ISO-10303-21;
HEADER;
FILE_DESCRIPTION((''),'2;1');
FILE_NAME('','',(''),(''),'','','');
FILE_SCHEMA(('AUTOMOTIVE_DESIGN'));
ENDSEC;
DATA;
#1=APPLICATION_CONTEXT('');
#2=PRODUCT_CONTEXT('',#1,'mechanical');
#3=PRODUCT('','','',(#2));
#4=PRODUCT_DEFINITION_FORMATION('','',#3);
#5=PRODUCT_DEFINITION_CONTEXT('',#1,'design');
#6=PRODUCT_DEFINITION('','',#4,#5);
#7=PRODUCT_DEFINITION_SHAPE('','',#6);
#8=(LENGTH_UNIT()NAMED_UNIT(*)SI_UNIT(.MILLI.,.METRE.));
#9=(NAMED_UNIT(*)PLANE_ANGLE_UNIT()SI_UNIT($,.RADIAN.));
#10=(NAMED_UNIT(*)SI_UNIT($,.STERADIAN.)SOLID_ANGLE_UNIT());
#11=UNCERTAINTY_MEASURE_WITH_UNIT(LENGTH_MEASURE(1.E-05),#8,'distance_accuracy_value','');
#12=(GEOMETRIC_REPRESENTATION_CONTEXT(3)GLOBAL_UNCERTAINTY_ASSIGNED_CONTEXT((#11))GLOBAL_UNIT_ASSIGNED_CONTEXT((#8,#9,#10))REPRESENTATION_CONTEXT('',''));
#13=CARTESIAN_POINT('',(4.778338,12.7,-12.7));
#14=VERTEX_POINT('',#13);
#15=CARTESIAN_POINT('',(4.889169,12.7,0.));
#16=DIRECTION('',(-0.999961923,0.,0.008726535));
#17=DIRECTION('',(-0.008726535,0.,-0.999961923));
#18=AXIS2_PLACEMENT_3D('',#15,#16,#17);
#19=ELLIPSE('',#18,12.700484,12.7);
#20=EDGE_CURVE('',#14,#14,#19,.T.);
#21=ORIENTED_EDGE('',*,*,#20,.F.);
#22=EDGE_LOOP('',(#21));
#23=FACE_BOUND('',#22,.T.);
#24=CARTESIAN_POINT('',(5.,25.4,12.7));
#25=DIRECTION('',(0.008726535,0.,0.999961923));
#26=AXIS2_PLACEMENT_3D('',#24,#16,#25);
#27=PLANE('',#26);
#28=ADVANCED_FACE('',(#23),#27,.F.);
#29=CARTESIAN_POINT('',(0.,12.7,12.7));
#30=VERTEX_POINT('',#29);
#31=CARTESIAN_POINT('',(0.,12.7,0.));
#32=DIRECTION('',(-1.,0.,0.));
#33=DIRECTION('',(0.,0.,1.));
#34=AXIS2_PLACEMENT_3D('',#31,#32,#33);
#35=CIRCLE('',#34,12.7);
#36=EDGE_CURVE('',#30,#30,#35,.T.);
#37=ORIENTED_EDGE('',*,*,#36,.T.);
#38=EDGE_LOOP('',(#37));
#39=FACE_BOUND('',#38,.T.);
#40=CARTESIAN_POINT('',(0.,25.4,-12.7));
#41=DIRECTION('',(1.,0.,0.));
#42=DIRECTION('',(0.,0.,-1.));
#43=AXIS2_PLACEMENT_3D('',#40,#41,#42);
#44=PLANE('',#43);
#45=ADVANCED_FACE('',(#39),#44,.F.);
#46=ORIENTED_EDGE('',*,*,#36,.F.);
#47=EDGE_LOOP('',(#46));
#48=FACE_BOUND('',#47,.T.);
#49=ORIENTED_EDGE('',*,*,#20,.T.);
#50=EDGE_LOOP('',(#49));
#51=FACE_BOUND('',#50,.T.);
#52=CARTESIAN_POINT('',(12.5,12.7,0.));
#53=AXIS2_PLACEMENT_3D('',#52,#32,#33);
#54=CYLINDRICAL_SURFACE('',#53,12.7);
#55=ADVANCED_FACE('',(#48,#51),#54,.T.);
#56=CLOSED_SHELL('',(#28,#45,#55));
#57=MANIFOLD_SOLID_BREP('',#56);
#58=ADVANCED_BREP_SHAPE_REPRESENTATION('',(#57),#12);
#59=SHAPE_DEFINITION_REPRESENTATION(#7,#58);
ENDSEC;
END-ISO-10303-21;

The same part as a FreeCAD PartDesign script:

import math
import FreeCAD as App
import Part
import Sketcher

V = App.Vector
Q = App.Units.Quantity

doc = App.newDocument("Part")
body = doc.addObject("PartDesign::Body", "Body")

sketch1 = doc.addObject("Sketcher::SketchObject", "Sketch")
body.addObject(sketch1)
sketch1.AttachmentSupport = (doc.XZ_Plane, [""])
sketch1.MapMode = "FlatFace"
sketch1.addGeometry([
    Part.LineSegment(V(0, -12.7, 0), V(0, 12.7, 0)),
    Part.LineSegment(V(0, 12.7, 0), V(5, 12.7, 0)),
    Part.LineSegment(V(5, 12.7, 0), V(4.778338, -12.7, 0)),
    Part.LineSegment(V(4.778338, -12.7, 0), V(0, -12.7, 0)),
], False)
sketch1.addConstraint([
    Sketcher.Constraint("Coincident", 0, 2, 1, 1),
    Sketcher.Constraint("Coincident", 1, 2, 2, 1),
    Sketcher.Constraint("Coincident", 2, 2, 3, 1),
    Sketcher.Constraint("Coincident", 3, 2, 0, 1),
    Sketcher.Constraint("Vertical", 0),
    Sketcher.Constraint("Horizontal", 1),
    Sketcher.Constraint("Horizontal", 3),
    Sketcher.Constraint("Symmetric", 0, 2, 3, 2, -1, 1),
    Sketcher.Constraint("DistanceX", 1, 1, 1, 2, 5.0),
    Sketcher.Constraint("DistanceY", 0, 1, 0, 2, 25.4),
    Sketcher.Constraint("Angle", 2, Q("-90.5 deg")),
])
pad1 = doc.addObject("PartDesign::Pad", "Pad")
body.addObject(pad1)
pad1.Profile = sketch1
pad1.Length = 25.4
pad1.Reversed = True

sketch2 = doc.addObject("Sketcher::SketchObject", "Sketch001")
body.addObject(sketch2)
sketch2.AttachmentSupport = (doc.YZ_Plane, [""])
sketch2.MapMode = "FlatFace"
sketch2.addGeometry([
    Part.LineSegment(V(25.4, -12.7, 0), V(12.7, -12.7, 0)),
    Part.ArcOfCircle(Part.Circle(V(12.7, 0, 0), V(0, 0, 1), 12.7), math.radians(-90), math.radians(0)),
    Part.LineSegment(V(25.4, 0, 0), V(25.4, -12.7, 0)),
    Part.LineSegment(V(12.7, -12.7, 0), V(0, -12.7, 0)),
    Part.LineSegment(V(0, -12.7, 0), V(0, 0, 0)),
    Part.ArcOfCircle(Part.Circle(V(12.7, 0, 0), V(0, 0, 1), 12.7), math.radians(180), math.radians(270)),
    Part.ArcOfCircle(Part.Circle(V(12.7, 0, 0), V(0, 0, 1), 12.7), math.radians(90), math.radians(180)),
    Part.LineSegment(V(0, 0, 0), V(0, 12.7, 0)),
    Part.LineSegment(V(0, 12.7, 0), V(12.7, 12.7, 0)),
    Part.ArcOfCircle(Part.Circle(V(12.7, 0, 0), V(0, 0, 1), 12.7), math.radians(0), math.radians(90)),
    Part.LineSegment(V(12.7, 12.7, 0), V(25.4, 12.7, 0)),
    Part.LineSegment(V(25.4, 12.7, 0), V(25.4, 0, 0)),
], False)
sketch2.addConstraint([
    Sketcher.Constraint("Tangent", 0, 2, 1, 1),
    Sketcher.Constraint("Tangent", 1, 2, 2, 1),
    Sketcher.Constraint("Coincident", 2, 2, 0, 1),
    Sketcher.Constraint("Coincident", 3, 2, 4, 1),
    Sketcher.Constraint("Tangent", 4, 2, 5, 1),
    Sketcher.Constraint("Tangent", 5, 2, 3, 1),
    Sketcher.Constraint("Tangent", 6, 2, 7, 1),
    Sketcher.Constraint("Coincident", 7, 2, 8, 1),
    Sketcher.Constraint("Tangent", 8, 2, 6, 1),
    Sketcher.Constraint("Tangent", 9, 2, 10, 1),
    Sketcher.Constraint("Coincident", 10, 2, 11, 1),
    Sketcher.Constraint("Tangent", 11, 2, 9, 1),
    Sketcher.Constraint("Horizontal", 0),
    Sketcher.Constraint("Vertical", 2),
    Sketcher.Constraint("Horizontal", 3),
    Sketcher.Constraint("Vertical", 4),
    Sketcher.Constraint("Vertical", 7),
    Sketcher.Constraint("Horizontal", 8),
    Sketcher.Constraint("Horizontal", 10),
    Sketcher.Constraint("Vertical", 11),
    Sketcher.Constraint("Coincident", 4, 2, -1, 1),
    Sketcher.Constraint("Coincident", 6, 2, -1, 1),
    Sketcher.Constraint("Coincident", 5, 3, 1, 3),
    Sketcher.Constraint("Coincident", 9, 3, 1, 3),
    Sketcher.Constraint("Coincident", 9, 2, 8, 2),
    Sketcher.Constraint("Equal", 1, 5),
    Sketcher.Constraint("Radius", 1, 12.7),
])
pocket1 = doc.addObject("PartDesign::Pocket", "Pocket")
body.addObject(pocket1)
pocket1.Profile = sketch2
pocket1.Length = 12.5
pocket1.Reversed = True

doc.recompute()
